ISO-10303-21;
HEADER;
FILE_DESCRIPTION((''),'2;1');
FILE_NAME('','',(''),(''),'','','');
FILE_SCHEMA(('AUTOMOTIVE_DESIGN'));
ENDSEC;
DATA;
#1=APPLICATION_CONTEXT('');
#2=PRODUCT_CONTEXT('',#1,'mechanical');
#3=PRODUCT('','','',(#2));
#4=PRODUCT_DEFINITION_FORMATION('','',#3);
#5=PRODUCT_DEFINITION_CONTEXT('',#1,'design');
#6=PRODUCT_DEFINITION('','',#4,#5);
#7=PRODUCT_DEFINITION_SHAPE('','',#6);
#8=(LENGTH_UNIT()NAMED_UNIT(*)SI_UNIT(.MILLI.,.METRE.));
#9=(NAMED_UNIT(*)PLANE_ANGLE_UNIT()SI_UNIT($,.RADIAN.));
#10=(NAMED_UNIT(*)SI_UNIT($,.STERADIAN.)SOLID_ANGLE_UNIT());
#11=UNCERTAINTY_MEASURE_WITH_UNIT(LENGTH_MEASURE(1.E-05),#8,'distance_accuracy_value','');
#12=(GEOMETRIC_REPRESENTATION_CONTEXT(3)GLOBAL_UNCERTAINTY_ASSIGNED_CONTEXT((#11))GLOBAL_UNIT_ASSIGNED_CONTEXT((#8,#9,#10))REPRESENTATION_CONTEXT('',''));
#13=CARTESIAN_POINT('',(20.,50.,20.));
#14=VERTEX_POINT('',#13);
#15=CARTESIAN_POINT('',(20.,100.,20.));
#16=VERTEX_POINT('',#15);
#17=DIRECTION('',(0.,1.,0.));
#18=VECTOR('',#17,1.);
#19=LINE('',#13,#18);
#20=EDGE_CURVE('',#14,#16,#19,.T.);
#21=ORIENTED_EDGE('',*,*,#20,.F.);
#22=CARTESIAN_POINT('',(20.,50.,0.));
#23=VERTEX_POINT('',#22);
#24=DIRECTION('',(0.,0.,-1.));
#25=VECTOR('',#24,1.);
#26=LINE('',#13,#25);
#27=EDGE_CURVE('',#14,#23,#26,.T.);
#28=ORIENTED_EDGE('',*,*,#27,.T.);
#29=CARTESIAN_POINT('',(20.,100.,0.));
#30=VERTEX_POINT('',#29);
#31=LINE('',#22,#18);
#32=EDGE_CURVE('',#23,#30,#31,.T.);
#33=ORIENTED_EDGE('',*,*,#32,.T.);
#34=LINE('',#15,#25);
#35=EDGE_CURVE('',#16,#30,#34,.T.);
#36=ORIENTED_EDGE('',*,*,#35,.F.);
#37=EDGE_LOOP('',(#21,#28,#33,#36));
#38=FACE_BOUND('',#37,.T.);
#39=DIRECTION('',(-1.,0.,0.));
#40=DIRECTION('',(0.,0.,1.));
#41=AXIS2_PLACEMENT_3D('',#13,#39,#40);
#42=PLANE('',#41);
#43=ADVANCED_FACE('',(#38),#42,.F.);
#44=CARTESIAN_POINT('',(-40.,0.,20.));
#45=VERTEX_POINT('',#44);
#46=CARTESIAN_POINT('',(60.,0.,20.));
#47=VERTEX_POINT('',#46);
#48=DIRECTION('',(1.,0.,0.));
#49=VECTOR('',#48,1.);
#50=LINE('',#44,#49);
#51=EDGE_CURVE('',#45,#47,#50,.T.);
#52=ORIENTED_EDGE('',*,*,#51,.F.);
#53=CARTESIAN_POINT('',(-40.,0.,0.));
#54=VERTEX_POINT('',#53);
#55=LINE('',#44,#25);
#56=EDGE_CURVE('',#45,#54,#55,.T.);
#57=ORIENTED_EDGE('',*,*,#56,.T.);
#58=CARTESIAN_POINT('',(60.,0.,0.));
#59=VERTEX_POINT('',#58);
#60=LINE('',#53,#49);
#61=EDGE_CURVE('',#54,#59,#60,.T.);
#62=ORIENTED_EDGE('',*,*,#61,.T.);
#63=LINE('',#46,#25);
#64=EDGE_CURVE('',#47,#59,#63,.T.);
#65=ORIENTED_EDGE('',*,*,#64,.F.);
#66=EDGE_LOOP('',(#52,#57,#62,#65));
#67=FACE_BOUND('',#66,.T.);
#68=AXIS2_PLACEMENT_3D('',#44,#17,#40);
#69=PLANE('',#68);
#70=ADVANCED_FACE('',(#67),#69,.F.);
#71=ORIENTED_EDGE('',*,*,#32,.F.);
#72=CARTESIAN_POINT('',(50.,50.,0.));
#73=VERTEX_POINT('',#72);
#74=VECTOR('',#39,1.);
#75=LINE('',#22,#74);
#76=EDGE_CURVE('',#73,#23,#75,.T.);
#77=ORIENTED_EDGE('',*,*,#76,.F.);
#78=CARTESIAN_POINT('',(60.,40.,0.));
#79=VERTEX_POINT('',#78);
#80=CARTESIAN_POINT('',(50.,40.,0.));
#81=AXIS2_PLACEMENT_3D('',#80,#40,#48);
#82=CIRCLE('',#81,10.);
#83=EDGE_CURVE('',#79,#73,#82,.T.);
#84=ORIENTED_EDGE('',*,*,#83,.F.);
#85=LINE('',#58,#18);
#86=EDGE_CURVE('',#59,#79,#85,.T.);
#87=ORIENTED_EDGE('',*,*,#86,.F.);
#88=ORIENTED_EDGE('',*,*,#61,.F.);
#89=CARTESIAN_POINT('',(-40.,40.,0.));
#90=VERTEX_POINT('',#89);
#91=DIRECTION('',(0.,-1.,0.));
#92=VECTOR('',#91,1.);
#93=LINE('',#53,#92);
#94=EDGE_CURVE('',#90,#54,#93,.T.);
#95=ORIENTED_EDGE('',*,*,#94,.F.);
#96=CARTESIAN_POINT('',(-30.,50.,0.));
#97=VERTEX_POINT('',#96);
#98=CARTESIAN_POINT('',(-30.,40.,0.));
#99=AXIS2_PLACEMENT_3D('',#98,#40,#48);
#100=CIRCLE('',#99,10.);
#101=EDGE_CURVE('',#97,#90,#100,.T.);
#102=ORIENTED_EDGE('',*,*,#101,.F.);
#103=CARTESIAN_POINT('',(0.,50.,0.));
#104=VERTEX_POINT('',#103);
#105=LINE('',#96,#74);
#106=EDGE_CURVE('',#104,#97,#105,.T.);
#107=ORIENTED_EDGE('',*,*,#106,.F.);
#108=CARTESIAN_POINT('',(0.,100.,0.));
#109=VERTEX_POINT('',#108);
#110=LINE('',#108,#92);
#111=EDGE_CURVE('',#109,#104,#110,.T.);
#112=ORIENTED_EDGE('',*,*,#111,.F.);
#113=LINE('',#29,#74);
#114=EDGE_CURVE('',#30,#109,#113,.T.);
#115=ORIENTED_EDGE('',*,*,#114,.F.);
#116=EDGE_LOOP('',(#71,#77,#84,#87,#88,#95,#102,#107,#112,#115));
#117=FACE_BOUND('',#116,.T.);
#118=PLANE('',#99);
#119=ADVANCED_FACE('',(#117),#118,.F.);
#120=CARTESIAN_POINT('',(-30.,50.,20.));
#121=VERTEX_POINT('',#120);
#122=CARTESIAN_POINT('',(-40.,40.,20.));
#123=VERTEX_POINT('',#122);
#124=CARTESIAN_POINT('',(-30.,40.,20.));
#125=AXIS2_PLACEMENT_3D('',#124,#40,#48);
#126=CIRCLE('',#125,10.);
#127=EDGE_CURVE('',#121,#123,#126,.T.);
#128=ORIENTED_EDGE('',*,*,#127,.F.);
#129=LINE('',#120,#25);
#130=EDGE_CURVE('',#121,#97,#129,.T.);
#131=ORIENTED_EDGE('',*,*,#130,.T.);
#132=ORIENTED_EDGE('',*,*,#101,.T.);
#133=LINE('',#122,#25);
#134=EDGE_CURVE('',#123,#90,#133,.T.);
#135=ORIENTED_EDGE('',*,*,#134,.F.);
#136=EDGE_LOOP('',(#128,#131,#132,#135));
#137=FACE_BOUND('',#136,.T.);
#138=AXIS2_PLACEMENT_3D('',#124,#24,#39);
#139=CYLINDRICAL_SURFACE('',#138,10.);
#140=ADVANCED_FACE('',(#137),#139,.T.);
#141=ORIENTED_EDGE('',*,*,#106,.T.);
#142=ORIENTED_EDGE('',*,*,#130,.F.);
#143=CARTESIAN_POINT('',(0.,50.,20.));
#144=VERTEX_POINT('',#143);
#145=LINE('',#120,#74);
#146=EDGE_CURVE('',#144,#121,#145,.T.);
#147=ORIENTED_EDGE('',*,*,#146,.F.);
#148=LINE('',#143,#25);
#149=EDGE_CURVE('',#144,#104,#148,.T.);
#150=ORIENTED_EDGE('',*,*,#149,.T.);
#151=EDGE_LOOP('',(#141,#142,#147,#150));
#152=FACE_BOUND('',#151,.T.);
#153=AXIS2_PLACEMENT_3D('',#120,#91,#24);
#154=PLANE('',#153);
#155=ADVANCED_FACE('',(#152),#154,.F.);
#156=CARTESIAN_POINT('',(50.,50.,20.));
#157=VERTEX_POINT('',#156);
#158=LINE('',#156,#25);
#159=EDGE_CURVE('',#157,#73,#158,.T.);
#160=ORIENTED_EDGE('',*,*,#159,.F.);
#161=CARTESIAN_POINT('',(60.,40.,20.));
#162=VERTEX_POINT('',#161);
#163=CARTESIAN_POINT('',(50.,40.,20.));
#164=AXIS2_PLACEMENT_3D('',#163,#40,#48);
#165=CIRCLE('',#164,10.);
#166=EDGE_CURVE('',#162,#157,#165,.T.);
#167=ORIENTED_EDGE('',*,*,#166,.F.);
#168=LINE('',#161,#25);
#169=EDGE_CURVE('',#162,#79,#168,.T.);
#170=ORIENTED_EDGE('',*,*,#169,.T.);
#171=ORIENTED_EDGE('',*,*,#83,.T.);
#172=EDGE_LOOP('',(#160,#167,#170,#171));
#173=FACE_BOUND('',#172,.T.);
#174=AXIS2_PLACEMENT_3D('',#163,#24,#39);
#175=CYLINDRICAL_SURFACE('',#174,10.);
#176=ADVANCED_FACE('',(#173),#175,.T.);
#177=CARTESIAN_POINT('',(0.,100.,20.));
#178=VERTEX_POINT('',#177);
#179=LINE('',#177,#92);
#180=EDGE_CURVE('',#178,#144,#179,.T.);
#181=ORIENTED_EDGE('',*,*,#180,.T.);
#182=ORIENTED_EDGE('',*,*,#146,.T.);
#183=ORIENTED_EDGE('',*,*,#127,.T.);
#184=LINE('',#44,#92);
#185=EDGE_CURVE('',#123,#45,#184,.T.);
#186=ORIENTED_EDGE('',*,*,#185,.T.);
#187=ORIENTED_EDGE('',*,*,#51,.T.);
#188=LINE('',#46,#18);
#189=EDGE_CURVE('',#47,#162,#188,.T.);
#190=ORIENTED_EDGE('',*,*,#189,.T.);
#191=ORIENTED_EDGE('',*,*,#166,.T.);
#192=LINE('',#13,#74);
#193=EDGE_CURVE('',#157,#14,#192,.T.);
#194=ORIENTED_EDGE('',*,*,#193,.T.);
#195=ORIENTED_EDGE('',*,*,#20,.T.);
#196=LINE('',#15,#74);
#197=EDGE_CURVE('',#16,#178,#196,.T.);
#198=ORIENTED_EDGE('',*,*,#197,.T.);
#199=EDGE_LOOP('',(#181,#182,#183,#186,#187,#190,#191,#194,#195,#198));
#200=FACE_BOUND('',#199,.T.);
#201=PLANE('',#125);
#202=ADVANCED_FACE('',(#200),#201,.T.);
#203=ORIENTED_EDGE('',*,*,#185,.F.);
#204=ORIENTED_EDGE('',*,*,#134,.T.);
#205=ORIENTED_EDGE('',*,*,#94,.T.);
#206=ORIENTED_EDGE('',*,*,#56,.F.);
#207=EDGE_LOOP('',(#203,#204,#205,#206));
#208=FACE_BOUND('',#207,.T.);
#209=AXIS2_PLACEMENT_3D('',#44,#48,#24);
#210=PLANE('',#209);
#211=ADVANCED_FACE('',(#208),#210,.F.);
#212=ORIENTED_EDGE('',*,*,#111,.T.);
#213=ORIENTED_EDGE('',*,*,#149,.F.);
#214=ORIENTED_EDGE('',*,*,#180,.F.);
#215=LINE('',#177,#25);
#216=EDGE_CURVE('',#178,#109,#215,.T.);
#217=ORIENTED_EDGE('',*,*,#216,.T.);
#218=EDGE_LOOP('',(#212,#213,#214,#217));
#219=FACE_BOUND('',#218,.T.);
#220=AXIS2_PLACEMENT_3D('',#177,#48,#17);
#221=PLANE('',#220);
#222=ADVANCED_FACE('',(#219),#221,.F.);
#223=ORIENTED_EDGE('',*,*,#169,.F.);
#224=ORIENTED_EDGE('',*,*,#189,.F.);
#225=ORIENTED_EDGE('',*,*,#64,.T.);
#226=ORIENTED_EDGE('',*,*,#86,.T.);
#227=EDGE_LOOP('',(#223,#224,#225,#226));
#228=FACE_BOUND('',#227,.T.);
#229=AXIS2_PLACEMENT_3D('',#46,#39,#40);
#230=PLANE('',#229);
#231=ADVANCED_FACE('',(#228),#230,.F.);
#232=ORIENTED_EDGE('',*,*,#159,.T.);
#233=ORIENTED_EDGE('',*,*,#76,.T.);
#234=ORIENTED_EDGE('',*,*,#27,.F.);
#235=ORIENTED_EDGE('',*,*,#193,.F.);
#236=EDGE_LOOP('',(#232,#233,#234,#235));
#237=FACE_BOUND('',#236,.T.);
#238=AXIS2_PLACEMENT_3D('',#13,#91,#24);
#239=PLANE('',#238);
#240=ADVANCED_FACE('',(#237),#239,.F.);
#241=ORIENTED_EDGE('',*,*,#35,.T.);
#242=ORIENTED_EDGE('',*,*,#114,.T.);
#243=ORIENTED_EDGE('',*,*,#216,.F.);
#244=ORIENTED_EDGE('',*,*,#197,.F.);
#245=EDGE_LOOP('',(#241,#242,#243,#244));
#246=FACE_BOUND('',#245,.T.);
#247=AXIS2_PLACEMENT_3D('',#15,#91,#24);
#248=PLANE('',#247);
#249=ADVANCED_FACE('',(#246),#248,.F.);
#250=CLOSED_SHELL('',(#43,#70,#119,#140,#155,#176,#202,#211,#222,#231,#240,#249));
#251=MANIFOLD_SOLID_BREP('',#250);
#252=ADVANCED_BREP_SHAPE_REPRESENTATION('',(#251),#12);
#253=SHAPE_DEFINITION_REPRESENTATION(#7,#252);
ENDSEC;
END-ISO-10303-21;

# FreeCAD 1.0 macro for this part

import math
import FreeCAD as App
import Part
import Sketcher
from FreeCAD import Vector

doc = App.newDocument("Part")
body = doc.addObject("PartDesign::Body", "Body")

# Sketch on XY plane
sketch1 = body.newObject("Sketcher::SketchObject", "Sketch")
sketch1.AttachmentSupport = (doc.getObject("XY_Plane"), [""])
sketch1.MapMode = "FlatFace"
sketch1.addGeometry([
    Part.LineSegment(Vector(-40, 0, 0), Vector(60, 0, 0)),  # 0
    Part.LineSegment(Vector(60, 0, 0), Vector(60, 40, 0)),  # 1
    Part.ArcOfCircle(Part.Circle(Vector(50, 40, 0), Vector(0, 0, 1), 10), math.radians(0), math.radians(90)),  # 2
    Part.LineSegment(Vector(50, 50, 0), Vector(20, 50, 0)),  # 3
    Part.LineSegment(Vector(20, 50, 0), Vector(20, 100, 0)),  # 4
    Part.LineSegment(Vector(20, 100, 0), Vector(0, 100, 0)),  # 5
    Part.LineSegment(Vector(0, 100, 0), Vector(0, 50, 0)),  # 6
    Part.LineSegment(Vector(0, 50, 0), Vector(-30, 50, 0)),  # 7
    Part.ArcOfCircle(Part.Circle(Vector(-30, 40, 0), Vector(0, 0, 1), 10), math.radians(90), math.radians(180)),  # 8
    Part.LineSegment(Vector(-40, 40, 0), Vector(-40, 0, 0)),  # 9
], False)
sketch1.addConstraint([
    Sketcher.Constraint("Coincident", 0, 2, 1, 1),
    Sketcher.Constraint("Tangent", 1, 2, 2, 1),
    Sketcher.Constraint("Tangent", 2, 2, 3, 1),
    Sketcher.Constraint("Coincident", 3, 2, 4, 1),
    Sketcher.Constraint("Coincident", 4, 2, 5, 1),
    Sketcher.Constraint("Coincident", 5, 2, 6, 1),
    Sketcher.Constraint("Coincident", 6, 2, 7, 1),
    Sketcher.Constraint("Tangent", 7, 2, 8, 1),
    Sketcher.Constraint("Tangent", 8, 2, 9, 1),
    Sketcher.Constraint("Coincident", 9, 2, 0, 1),
    Sketcher.Constraint("Horizontal", 0),
    Sketcher.Constraint("Vertical", 1),
    Sketcher.Constraint("Horizontal", 3),
    Sketcher.Constraint("Vertical", 4),
    Sketcher.Constraint("Horizontal", 5),
    Sketcher.Constraint("Vertical", 6),
    Sketcher.Constraint("Horizontal", 7),
    Sketcher.Constraint("Vertical", 9),
    Sketcher.Constraint("Equal", 2, 8),
    Sketcher.Constraint("PointOnObject", 0, 2, -1),
    Sketcher.Constraint("PointOnObject", 5, 2, -2),
    Sketcher.Constraint("Horizontal", 2, 3, 8, 3),
    Sketcher.Constraint("Equal", 3, 7),
    Sketcher.Constraint("Radius", 2, 10.0),
    Sketcher.Constraint("DistanceX", 0, 1, 0, 2, 100.0),
    Sketcher.Constraint("DistanceX", 3, 2, 3, 1, 30.0),
    Sketcher.Constraint("DistanceY", 1, 1, 1, 2, 40.0),
    Sketcher.Constraint("DistanceY", 4, 1, 4, 2, 50.0),
])
pad1 = body.newObject("PartDesign::Pad", "Pad")
pad1.Profile = sketch1
pad1.Length = 20

doc.recompute()
